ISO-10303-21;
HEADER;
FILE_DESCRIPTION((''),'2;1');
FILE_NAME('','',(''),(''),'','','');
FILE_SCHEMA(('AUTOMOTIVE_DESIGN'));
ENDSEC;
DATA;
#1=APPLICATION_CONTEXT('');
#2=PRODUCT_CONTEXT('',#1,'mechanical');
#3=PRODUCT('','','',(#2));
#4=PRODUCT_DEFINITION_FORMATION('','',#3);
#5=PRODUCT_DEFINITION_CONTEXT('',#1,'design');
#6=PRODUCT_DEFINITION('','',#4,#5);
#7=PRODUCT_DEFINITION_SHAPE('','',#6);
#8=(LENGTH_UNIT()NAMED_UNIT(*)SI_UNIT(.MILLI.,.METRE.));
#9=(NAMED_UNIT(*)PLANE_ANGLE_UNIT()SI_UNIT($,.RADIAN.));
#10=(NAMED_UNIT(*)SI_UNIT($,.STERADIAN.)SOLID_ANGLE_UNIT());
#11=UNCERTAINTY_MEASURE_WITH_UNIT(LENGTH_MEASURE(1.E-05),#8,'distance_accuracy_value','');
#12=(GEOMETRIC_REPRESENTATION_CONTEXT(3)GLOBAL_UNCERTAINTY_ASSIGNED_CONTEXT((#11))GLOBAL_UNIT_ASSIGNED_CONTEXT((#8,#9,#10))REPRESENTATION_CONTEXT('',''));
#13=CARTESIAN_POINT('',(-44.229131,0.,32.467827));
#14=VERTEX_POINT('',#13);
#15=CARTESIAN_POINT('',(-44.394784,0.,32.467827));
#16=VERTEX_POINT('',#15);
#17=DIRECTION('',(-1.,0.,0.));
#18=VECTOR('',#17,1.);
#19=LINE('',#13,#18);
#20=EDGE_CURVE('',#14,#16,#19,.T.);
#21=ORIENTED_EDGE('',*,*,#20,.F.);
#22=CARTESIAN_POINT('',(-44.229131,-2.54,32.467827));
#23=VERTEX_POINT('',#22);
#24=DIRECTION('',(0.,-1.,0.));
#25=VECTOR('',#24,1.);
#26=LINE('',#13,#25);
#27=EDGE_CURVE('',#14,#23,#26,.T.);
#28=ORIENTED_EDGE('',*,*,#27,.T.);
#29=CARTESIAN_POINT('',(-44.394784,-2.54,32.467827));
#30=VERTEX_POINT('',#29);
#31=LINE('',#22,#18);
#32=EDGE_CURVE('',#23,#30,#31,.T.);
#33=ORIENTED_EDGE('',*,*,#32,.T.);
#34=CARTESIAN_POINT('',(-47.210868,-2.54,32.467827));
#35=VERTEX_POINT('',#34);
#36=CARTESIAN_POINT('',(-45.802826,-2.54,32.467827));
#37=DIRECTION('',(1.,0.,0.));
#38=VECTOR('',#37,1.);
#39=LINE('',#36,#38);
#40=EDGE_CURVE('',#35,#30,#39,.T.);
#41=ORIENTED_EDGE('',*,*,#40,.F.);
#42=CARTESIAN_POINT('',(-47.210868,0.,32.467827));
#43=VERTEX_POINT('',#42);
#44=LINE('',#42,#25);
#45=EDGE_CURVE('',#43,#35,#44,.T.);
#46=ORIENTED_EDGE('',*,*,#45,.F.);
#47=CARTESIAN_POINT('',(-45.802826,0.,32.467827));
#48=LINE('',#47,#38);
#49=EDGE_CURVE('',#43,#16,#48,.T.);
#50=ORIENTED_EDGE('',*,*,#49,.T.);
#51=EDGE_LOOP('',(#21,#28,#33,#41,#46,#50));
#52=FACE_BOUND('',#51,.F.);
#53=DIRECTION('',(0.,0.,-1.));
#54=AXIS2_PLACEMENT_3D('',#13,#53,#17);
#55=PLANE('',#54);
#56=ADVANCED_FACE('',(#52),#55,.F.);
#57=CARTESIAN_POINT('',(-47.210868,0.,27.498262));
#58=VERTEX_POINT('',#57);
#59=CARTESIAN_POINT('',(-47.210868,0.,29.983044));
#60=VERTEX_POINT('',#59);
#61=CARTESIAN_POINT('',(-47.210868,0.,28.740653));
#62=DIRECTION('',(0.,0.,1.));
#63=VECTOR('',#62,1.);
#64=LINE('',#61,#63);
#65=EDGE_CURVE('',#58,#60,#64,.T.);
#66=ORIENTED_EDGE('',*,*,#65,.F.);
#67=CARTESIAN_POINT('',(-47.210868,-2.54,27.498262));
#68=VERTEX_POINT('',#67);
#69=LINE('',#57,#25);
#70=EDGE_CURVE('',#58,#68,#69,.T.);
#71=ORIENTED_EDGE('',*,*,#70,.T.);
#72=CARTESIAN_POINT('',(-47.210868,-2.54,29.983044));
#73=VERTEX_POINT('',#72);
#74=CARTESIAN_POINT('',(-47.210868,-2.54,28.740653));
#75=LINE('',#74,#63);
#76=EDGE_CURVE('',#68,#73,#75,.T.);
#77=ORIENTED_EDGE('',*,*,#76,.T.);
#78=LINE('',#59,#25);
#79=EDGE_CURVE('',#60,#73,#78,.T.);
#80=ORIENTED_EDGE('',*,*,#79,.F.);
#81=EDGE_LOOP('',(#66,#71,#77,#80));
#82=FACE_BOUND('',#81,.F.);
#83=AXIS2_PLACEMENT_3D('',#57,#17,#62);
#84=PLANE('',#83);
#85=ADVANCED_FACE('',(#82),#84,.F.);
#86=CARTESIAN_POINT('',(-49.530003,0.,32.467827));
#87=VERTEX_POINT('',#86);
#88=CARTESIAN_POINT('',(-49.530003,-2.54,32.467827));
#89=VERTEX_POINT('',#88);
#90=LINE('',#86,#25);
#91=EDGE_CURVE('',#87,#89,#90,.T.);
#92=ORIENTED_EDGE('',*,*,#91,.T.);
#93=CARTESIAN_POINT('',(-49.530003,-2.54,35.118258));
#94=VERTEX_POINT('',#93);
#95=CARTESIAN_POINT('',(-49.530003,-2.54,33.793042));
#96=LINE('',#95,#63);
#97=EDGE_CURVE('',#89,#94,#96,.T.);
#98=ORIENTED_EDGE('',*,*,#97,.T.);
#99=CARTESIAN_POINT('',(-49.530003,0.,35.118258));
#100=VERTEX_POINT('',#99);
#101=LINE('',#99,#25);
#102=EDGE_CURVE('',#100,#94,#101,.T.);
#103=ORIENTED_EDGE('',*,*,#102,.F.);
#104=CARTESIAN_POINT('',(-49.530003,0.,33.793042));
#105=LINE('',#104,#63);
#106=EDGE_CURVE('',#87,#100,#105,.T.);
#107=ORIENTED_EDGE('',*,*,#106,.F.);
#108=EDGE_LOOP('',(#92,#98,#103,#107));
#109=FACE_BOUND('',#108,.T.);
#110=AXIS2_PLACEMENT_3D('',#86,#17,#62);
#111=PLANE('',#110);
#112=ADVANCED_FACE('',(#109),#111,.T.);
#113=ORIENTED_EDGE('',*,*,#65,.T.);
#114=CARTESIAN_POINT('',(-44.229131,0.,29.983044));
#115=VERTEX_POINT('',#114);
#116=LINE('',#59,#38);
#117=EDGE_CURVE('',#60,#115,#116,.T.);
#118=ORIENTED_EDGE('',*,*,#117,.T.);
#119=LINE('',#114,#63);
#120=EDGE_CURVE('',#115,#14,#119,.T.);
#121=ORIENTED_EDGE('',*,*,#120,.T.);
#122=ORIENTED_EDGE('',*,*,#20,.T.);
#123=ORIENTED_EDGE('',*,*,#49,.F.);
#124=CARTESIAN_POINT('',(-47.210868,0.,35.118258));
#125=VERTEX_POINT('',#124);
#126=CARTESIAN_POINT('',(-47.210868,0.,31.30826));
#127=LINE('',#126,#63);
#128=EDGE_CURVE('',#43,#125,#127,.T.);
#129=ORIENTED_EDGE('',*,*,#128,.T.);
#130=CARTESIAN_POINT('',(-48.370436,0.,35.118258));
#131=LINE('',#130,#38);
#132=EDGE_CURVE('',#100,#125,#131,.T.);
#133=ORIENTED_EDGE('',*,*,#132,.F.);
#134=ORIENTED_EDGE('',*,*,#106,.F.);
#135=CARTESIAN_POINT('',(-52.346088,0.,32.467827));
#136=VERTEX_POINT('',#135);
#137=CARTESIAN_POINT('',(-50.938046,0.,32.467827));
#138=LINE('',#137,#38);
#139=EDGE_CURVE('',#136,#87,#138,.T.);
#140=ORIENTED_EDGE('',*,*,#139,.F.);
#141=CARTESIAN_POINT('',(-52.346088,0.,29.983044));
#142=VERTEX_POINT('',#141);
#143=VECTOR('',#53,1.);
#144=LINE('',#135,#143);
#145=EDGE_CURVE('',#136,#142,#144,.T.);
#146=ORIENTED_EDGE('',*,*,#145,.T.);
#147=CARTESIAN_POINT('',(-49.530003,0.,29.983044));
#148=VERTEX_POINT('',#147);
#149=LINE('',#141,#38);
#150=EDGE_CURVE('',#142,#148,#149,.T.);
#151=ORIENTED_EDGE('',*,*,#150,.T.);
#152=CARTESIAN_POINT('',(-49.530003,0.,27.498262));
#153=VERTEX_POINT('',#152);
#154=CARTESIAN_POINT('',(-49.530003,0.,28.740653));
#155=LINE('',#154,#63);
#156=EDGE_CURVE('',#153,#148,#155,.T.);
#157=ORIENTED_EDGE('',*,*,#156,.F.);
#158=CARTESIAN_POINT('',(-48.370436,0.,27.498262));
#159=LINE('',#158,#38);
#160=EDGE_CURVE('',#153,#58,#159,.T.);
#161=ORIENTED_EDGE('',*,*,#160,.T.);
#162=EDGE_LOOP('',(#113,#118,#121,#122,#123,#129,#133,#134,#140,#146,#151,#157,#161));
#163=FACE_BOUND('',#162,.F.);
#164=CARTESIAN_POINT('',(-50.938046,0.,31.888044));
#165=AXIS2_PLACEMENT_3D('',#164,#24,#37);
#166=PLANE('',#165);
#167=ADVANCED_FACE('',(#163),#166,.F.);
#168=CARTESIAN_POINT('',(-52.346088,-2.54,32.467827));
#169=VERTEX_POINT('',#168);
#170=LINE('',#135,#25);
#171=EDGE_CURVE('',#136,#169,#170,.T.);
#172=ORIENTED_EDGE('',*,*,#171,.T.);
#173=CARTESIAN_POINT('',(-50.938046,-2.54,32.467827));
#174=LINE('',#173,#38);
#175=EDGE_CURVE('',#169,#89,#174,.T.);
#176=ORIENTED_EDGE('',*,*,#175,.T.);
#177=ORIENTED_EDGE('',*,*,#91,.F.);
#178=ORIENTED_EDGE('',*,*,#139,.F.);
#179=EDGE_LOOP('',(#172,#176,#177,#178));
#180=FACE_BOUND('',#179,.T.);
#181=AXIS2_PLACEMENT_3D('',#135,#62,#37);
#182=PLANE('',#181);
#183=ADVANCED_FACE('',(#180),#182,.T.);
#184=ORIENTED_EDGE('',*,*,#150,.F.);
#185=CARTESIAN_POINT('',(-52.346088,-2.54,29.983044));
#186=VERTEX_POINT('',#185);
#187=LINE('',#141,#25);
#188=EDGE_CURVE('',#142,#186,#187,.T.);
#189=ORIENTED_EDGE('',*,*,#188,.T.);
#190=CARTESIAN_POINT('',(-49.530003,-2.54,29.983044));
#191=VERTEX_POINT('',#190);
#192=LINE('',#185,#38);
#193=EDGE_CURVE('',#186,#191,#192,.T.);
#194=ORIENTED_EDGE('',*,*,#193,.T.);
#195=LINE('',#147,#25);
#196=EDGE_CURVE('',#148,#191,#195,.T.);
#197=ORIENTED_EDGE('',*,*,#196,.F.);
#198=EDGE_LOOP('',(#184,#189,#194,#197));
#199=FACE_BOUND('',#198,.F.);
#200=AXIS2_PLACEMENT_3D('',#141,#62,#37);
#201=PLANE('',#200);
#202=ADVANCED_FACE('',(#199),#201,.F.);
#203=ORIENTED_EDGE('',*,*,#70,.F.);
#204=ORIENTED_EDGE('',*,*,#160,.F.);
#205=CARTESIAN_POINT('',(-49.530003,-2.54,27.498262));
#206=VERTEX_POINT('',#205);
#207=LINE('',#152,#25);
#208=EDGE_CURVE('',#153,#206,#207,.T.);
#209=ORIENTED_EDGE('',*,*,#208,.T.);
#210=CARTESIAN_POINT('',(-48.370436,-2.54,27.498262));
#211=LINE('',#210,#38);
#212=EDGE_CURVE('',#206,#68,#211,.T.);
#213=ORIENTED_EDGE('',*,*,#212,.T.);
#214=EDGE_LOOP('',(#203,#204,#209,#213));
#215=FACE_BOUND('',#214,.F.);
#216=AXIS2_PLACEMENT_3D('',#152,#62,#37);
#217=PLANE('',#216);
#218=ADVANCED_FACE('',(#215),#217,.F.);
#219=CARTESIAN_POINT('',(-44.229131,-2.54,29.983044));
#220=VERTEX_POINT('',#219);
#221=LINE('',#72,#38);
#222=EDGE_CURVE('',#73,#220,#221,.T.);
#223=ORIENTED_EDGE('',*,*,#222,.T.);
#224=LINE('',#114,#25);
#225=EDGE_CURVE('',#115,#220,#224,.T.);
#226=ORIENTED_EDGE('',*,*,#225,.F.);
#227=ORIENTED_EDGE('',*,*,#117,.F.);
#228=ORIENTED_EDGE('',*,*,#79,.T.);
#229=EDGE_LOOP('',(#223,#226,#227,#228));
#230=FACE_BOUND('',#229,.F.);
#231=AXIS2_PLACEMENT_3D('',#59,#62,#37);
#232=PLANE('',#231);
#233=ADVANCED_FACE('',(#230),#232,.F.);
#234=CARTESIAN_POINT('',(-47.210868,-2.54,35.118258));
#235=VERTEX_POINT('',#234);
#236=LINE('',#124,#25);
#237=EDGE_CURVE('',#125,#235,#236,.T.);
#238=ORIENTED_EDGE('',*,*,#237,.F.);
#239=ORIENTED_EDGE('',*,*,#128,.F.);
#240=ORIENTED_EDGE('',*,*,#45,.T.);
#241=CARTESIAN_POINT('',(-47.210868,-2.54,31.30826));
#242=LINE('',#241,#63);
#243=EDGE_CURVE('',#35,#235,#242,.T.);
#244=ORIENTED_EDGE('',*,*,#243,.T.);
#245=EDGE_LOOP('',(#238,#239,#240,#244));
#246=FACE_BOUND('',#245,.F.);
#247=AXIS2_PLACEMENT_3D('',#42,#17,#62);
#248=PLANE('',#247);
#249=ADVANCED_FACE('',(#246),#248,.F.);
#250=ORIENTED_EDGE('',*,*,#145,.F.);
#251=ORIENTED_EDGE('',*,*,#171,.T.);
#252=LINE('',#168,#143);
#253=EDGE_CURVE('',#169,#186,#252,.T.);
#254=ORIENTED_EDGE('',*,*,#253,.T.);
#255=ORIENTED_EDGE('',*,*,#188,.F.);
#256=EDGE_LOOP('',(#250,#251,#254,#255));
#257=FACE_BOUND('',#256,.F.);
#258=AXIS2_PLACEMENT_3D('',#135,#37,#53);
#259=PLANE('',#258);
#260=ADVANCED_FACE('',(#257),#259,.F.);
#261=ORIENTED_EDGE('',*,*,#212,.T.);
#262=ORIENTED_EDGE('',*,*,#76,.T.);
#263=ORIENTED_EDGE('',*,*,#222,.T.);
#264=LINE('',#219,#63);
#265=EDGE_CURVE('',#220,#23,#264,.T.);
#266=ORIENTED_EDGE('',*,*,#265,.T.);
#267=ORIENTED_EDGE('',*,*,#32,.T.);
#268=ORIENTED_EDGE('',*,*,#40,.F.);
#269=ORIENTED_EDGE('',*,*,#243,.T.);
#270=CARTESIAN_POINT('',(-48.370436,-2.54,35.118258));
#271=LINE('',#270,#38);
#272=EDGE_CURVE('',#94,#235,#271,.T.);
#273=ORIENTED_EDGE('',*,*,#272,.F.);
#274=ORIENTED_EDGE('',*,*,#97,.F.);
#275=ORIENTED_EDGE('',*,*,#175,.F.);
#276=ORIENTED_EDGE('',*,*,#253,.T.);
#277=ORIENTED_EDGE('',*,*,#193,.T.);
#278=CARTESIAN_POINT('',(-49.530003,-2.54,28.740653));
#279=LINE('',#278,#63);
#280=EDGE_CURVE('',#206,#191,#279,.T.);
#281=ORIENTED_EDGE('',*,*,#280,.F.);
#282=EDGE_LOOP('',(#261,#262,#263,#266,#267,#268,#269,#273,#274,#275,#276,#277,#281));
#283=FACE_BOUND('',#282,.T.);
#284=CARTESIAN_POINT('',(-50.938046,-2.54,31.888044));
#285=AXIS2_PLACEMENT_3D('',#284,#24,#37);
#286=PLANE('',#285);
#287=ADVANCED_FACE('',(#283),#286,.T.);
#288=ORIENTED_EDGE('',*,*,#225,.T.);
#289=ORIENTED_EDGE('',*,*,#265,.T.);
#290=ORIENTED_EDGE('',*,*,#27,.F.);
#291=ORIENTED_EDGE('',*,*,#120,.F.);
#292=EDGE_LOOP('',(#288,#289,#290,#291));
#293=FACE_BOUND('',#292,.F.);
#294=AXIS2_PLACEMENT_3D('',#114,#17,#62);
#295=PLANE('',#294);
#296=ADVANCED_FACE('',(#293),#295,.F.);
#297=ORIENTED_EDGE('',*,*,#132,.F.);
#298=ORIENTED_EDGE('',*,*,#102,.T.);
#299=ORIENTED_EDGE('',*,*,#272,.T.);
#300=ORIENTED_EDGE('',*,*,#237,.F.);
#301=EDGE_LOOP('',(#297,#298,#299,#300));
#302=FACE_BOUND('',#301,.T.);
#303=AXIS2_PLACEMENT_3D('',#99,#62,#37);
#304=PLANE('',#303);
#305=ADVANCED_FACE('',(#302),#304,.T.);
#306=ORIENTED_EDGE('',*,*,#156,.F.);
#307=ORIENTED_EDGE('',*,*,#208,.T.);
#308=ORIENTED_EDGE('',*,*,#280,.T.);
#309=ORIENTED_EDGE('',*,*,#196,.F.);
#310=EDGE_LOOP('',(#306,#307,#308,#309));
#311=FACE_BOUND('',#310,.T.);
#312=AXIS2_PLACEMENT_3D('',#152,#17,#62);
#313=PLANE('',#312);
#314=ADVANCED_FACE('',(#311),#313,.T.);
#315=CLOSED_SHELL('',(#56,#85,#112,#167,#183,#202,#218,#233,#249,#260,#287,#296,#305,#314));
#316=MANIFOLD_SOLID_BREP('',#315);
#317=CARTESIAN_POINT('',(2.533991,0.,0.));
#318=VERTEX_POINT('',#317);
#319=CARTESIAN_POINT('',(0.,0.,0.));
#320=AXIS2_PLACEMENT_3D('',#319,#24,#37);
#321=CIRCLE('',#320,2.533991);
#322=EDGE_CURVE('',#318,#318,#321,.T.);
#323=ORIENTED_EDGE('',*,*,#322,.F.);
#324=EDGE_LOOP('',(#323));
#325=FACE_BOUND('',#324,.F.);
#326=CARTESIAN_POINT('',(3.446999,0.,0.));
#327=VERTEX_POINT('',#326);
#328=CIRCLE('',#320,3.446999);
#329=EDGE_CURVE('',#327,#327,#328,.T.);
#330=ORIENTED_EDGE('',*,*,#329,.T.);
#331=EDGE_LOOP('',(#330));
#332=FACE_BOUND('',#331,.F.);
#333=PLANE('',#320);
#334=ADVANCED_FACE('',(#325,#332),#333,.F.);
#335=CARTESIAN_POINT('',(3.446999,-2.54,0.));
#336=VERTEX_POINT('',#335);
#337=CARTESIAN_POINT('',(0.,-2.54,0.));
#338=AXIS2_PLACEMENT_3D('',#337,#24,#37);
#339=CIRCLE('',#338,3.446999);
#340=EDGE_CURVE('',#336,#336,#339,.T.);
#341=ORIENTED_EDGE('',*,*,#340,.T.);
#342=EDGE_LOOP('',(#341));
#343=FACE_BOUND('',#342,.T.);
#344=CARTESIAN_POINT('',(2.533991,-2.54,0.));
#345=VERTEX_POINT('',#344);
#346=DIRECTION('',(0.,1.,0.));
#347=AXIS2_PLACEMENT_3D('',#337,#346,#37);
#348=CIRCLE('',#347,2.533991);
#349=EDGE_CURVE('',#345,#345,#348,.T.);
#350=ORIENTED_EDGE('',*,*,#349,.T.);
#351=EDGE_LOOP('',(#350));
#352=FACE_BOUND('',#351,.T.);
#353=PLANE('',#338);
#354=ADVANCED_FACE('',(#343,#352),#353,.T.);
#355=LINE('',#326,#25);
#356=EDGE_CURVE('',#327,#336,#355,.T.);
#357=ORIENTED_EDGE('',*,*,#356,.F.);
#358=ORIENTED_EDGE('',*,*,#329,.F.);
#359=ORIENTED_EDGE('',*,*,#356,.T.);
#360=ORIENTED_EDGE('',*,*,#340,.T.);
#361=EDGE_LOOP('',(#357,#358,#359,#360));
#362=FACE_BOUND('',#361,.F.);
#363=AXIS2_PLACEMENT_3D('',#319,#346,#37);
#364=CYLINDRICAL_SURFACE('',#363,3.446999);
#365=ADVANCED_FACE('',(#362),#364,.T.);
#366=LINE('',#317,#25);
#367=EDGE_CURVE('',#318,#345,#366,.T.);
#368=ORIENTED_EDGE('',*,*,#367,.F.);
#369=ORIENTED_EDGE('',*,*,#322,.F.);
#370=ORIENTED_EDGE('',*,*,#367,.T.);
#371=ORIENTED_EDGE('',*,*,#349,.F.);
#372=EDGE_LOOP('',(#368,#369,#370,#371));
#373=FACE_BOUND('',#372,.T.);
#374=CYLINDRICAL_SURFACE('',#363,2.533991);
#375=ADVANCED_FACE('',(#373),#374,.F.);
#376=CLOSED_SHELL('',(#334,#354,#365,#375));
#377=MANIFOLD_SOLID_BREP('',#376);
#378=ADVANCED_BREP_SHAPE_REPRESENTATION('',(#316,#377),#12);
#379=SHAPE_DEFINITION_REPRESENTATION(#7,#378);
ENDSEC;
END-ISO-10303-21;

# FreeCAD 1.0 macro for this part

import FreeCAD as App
import Part
import Sketcher
Q = App.Units.Quantity


def add_polygon(sketch, points):
    """Adds a closed chain of lines whose ends are joined by coincident constraints."""
    first, n = sketch.GeometryCount, len(points)
    for a, b in zip(points, points[1:] + points[:1]):
        sketch.addGeometry(Part.LineSegment(App.Vector(*a, 0), App.Vector(*b, 0)), False)
    for i in range(n):
        sketch.addConstraint(Sketcher.Constraint("Coincident", first + i, 2, first + (i + 1) % n, 1))

doc = App.newDocument("Part")
body = doc.addObject("PartDesign::Body", "Body")

# Sketch on XZ plane
sketch1 = body.newObject("Sketcher::SketchObject", "Sketch")
sketch1.AttachmentSupport = (doc.getObject("XZ_Plane"), [""])
sketch1.MapMode = "FlatFace"
sketch1.addGeometry(Part.Circle(App.Vector(0, 0, 0), App.Vector(0, 0, 1), 3.4), False)
sketch1.addConstraint(Sketcher.Constraint("Coincident", 0, 3, -1, 1))
sketch1.addConstraint(Sketcher.Constraint("Diameter", 0, 6.893997))
pad1 = body.newObject("PartDesign::Pad", "Pad")
pad1.Profile = sketch1
pad1.Length = Q("0.1 in")

# Sketch on XZ plane
sketch2 = body.newObject("Sketcher::SketchObject", "Sketch001")
sketch2.AttachmentSupport = (doc.getObject("XZ_Plane"), [""])
sketch2.MapMode = "FlatFace"
sketch2.addGeometry(Part.Circle(App.Vector(0, 0, 0), App.Vector(0, 0, 1), 2.5), False)
sketch2.addConstraint(Sketcher.Constraint("Coincident", 0, 3, -1, 1))
sketch2.addConstraint(Sketcher.Constraint("Diameter", 0, 5.067982))
pocket1 = body.newObject("PartDesign::Pocket", "Pocket")
pocket1.Profile = sketch2
pocket1.Length = Q("0.99 in")
pocket1.Reversed = True
body2 = doc.addObject("PartDesign::Body", "Body001")

# Sketch on XZ plane
sketch3 = body2.newObject("Sketcher::SketchObject", "Sketch002")
sketch3.AttachmentSupport = (doc.getObject("XZ_Plane001"), [""])
sketch3.MapMode = "FlatFace"
add_polygon(sketch3, [(-52.35, 32.47), (-52.35, 29.98), (-49.53, 29.98), (-49.53, 27.5), (-47.21, 27.5), (-47.21, 29.98), (-44.23, 29.98), (-44.23, 32.47), (-44.39, 32.47), (-47.21, 32.47), (-47.21, 35.12), (-49.53, 35.12), (-49.53, 32.47)])  # lines 0-12
sketch3.addConstraint(Sketcher.Constraint("Vertical", 0))
sketch3.addConstraint(Sketcher.Constraint("Horizontal", 1))
sketch3.addConstraint(Sketcher.Constraint("Vertical", 2))
sketch3.addConstraint(Sketcher.Constraint("Horizontal", 3))
sketch3.addConstraint(Sketcher.Constraint("Vertical", 4))
sketch3.addConstraint(Sketcher.Constraint("Horizontal", 5))
sketch3.addConstraint(Sketcher.Constraint("Vertical", 6))
sketch3.addConstraint(Sketcher.Constraint("Horizontal", 7))
sketch3.addConstraint(Sketcher.Constraint("Horizontal", 8))
sketch3.addConstraint(Sketcher.Constraint("Vertical", 9))
sketch3.addConstraint(Sketcher.Constraint("Horizontal", 10))
sketch3.addConstraint(Sketcher.Constraint("Vertical", 11))
sketch3.addConstraint(Sketcher.Constraint("Horizontal", 12))
sketch3.addConstraint(Sketcher.Constraint("Horizontal", 1, 2, 4, 2))
sketch3.addConstraint(Sketcher.Constraint("Horizontal", 8, 2, 11, 2))
sketch3.addConstraint(Sketcher.Constraint("Vertical", 4, 2, 8, 2))
sketch3.addConstraint(Sketcher.Constraint("Vertical", 2, 2, 10, 2))
sketch3.addConstraint(Sketcher.Constraint("Equal", 1, 8))
sketch3.addConstraint(Sketcher.Constraint("Equal", 0, 2))
sketch3.addConstraint(Sketcher.Constraint("DistanceX", 1, 2, -1, 1, Q("1.9500001 in")))
sketch3.addConstraint(Sketcher.Constraint("DistanceY", 2, 2, 2, 1, 2.484782))
sketch3.addConstraint(Sketcher.Constraint("DistanceY", 9, 1, 9, 2, 2.65043))
sketch3.addConstraint(Sketcher.Constraint("DistanceX", 1, 1, 1, 2, 2.816085))
sketch3.addConstraint(Sketcher.Constraint("DistanceX", 3, 1, 3, 2, 2.319135))
sketch3.addConstraint(Sketcher.Constraint("DistanceX", 5, 1, 5, 2, 2.981737))
sketch3.addConstraint(Sketcher.Constraint("DistanceY", -1, 1, 0, 2, 29.983044))
pad2 = body2.newObject("PartDesign::Pad", "Pad001")
pad2.Profile = sketch3
pad2.Length = Q("0.1 in")

doc.recompute()
